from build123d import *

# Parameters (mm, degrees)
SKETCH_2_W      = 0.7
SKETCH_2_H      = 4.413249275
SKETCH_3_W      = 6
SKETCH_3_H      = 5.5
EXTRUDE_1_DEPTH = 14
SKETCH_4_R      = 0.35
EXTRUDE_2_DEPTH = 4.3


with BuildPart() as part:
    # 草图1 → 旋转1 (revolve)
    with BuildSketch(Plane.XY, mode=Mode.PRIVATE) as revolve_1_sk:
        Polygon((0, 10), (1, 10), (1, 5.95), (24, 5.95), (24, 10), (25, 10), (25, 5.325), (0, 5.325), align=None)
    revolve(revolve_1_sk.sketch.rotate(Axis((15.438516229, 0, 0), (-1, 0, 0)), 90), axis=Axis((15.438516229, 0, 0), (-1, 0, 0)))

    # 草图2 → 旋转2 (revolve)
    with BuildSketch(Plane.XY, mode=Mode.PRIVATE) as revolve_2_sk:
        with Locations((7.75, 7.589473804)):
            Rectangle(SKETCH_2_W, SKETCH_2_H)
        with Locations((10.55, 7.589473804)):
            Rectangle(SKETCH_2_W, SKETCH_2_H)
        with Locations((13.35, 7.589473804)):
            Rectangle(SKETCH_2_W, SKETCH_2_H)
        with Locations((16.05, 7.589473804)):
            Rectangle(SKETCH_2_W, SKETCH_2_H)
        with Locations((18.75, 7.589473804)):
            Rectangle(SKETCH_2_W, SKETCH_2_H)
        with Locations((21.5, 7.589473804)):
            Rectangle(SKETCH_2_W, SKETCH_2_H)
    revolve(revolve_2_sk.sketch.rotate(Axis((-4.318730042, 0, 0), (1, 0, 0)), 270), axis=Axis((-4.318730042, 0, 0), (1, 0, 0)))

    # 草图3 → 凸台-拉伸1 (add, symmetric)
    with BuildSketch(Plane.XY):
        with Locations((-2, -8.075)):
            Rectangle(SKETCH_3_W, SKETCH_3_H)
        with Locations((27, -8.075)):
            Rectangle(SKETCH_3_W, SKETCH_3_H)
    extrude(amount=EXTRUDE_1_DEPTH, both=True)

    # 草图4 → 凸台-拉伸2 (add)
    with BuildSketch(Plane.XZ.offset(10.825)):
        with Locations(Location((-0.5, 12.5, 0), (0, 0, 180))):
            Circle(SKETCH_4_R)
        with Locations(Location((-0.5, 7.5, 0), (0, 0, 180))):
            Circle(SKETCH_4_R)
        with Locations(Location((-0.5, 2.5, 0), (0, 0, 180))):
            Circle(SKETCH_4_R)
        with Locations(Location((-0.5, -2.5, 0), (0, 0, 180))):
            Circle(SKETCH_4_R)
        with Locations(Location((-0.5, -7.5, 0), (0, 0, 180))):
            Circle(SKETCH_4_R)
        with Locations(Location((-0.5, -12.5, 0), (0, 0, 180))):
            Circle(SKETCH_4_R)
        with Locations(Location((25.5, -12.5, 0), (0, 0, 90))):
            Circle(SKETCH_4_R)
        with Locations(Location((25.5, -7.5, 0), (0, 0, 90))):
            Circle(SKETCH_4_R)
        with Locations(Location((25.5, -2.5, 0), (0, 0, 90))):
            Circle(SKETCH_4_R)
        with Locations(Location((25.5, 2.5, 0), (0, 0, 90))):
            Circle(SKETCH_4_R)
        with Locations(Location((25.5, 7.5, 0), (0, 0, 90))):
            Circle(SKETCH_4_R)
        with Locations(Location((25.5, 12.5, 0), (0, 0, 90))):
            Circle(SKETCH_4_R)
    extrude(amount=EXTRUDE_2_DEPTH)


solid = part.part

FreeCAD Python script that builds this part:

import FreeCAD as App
import Part
import Sketcher
Q = App.Units.Quantity


def add_polygon(sketch, points):
    """Adds a closed chain of lines whose ends are joined by coincident constraints."""
    first, n = sketch.GeometryCount, len(points)
    for a, b in zip(points, points[1:] + points[:1]):
        sketch.addGeometry(Part.LineSegment(App.Vector(*a, 0), App.Vector(*b, 0)), False)
    for i in range(n):
        sketch.addConstraint(Sketcher.Constraint("Coincident", first + i, 2, first + (i + 1) % n, 1))

doc = App.newDocument("Part")
body = doc.addObject("PartDesign::Body", "Body")

# Sketch on XY plane
sketch1 = body.newObject("Sketcher::SketchObject", "Sketch")
sketch1.AttachmentSupport = (doc.getObject("XY_Plane"), [""])
sketch1.MapMode = "FlatFace"
add_polygon(sketch1, [(1, 10), (0, 10), (0, 5.3), (25, 5.3), (25, 10), (24, 10), (24, 6), (1, 6)])  # lines 0-7
sketch1.addConstraint([
    Sketcher.Constraint("Horizontal", 0),
    Sketcher.Constraint("Vertical", 1),
    Sketcher.Constraint("Horizontal", 2),
    Sketcher.Constraint("Vertical", 3),
    Sketcher.Constraint("Horizontal", 4),
    Sketcher.Constraint("Vertical", 5),
    Sketcher.Constraint("Horizontal", 6),
    Sketcher.Constraint("Vertical", 7),
    Sketcher.Constraint("PointOnObject", 0, 2, -2),
    Sketcher.Constraint("Horizontal", 0, 2, 3, 2),
    Sketcher.Constraint("Equal", 0, 4),
    Sketcher.Constraint("DistanceX", 0, 2, 0, 1, Q("1 mm")),
    Sketcher.Constraint("DistanceX", 2, 1, 2, 2, Q("25 mm")),
    Sketcher.Constraint("DistanceY", -1, 1, 0, 2, Q("10 mm")),
    Sketcher.Constraint("DistanceY", 5, 2, 5, 1, Q("4.05 mm")),
    Sketcher.Constraint("DistanceY", 1, 2, 1, 1, Q("4.675 mm")),
])
revolution = body.newObject("PartDesign::Revolution", "Revolution")
revolution.Profile = sketch1
revolution.ReferenceAxis = (sketch1, ["H_Axis"])
revolution.Angle = 360

# Sketch on XY plane
sketch2 = body.newObject("Sketcher::SketchObject", "Sketch001")
sketch2.AttachmentSupport = (doc.getObject("XY_Plane"), [""])
sketch2.MapMode = "FlatFace"
add_polygon(sketch2, [(7.4, 9.8), (7.4, 5.4), (8.1, 5.4), (8.1, 9.8)])  # lines 0-3
add_polygon(sketch2, [(10.2, 9.8), (10.2, 5.4), (10.9, 5.4), (10.9, 9.8)])  # lines 4-7
add_polygon(sketch2, [(13, 9.8), (13, 5.4), (13.7, 5.4), (13.7, 9.8)])  # lines 8-11
add_polygon(sketch2, [(15.7, 9.8), (15.7, 5.4), (16.4, 5.4), (16.4, 9.8)])  # lines 12-15
add_polygon(sketch2, [(18.4, 9.8), (18.4, 5.4), (19.1, 5.4), (19.1, 9.8)])  # lines 16-19
add_polygon(sketch2, [(21.1, 9.8), (21.1, 5.4), (21.9, 5.4), (21.9, 9.8)])  # lines 20-23
sketch2.addConstraint([
    Sketcher.Constraint("Vertical", 0),
    Sketcher.Constraint("Horizontal", 1),
    Sketcher.Constraint("Vertical", 2),
    Sketcher.Constraint("Horizontal", 3),
    Sketcher.Constraint("Vertical", 4),
    Sketcher.Constraint("Horizontal", 5),
    Sketcher.Constraint("Vertical", 6),
    Sketcher.Constraint("Horizontal", 7),
    Sketcher.Constraint("Vertical", 8),
    Sketcher.Constraint("Horizontal", 9),
    Sketcher.Constraint("Vertical", 10),
    Sketcher.Constraint("Horizontal", 11),
    Sketcher.Constraint("Vertical", 12),
    Sketcher.Constraint("Horizontal", 13),
    Sketcher.Constraint("Vertical", 14),
    Sketcher.Constraint("Horizontal", 15),
    Sketcher.Constraint("Vertical", 16),
    Sketcher.Constraint("Horizontal", 17),
    Sketcher.Constraint("Vertical", 18),
    Sketcher.Constraint("Horizontal", 19),
    Sketcher.Constraint("Vertical", 20),
    Sketcher.Constraint("Horizontal", 21),
    Sketcher.Constraint("Vertical", 22),
    Sketcher.Constraint("Horizontal", 23),
    Sketcher.Constraint("Horizontal", 1, 2, 4, 2),
    Sketcher.Constraint("Horizontal", 3, 2, 6, 2),
    Sketcher.Constraint("Horizontal", 5, 2, 8, 2),
    Sketcher.Constraint("Horizontal", 7, 2, 10, 2),
    Sketcher.Constraint("Horizontal", 9, 2, 12, 2),
    Sketcher.Constraint("Horizontal", 11, 2, 14, 2),
    Sketcher.Constraint("Horizontal", 13, 2, 16, 2),
    Sketcher.Constraint("Horizontal", 15, 2, 18, 2),
    Sketcher.Constraint("Horizontal", 17, 2, 20, 2),
    Sketcher.Constraint("Horizontal", 19, 2, 22, 2),
    Sketcher.Constraint("Equal", 3, 5),
    Sketcher.Constraint("Equal", 7, 9),
    Sketcher.Constraint("Equal", 11, 13),
    Sketcher.Constraint("Equal", 15, 17),
    Sketcher.Constraint("Equal", 19, 21),
    Sketcher.Constraint("DistanceX", 1, 1, 1, 2, Q("0.7 mm")),
    Sketcher.Constraint("DistanceX", -1, 1, 8, 2, Q("13 mm")),
    Sketcher.Constraint("DistanceX", 9, 2, 12, 2, Q("2 mm")),
    Sketcher.Constraint("DistanceX", 13, 2, 16, 2, Q("2 mm")),
    Sketcher.Constraint("DistanceX", -1, 1, 0, 2, Q("7.4 mm")),
    Sketcher.Constraint("DistanceX", -1, 1, 4, 2, Q("10.2 mm")),
    Sketcher.Constraint("DistanceX", -1, 1, 20, 2, Q("21.15 mm")),
    Sketcher.Constraint("DistanceY", 0, 2, 0, 1, Q("4.413249 mm")),
    Sketcher.Constraint("DistanceY", -1, 1, 2, 2, Q("9.796098 mm")),
])
revolution2 = body.newObject("PartDesign::Revolution", "Revolution001")
revolution2.Profile = sketch2
revolution2.ReferenceAxis = (sketch2, ["H_Axis"])
revolution2.Angle = 360

# Sketch on XY plane
sketch3 = body.newObject("Sketcher::SketchObject", "Sketch002")
sketch3.AttachmentSupport = (doc.getObject("XY_Plane"), [""])
sketch3.MapMode = "FlatFace"
add_polygon(sketch3, [(-5, -5), (-5, -11), (1, -11), (1, -5)])  # lines 0-3
add_polygon(sketch3, [(24, -5), (24, -11), (30, -11), (30, -5)])  # lines 4-7
sketch3.addConstraint([
    Sketcher.Constraint("Vertical", 0),
    Sketcher.Constraint("Horizontal", 1),
    Sketcher.Constraint("Vertical", 2),
    Sketcher.Constraint("Horizontal", 3),
    Sketcher.Constraint("Vertical", 4),
    Sketcher.Constraint("Horizontal", 5),
    Sketcher.Constraint("Vertical", 6),
    Sketcher.Constraint("Horizontal", 7),
    Sketcher.Constraint("Horizontal", 1, 2, 4, 2),
    Sketcher.Constraint("Horizontal", 3, 2, 6, 2),
    Sketcher.Constraint("Equal", 3, 5),
    Sketcher.Constraint("DistanceX", 1, 1, 1, 2, Q("6 mm")),
    Sketcher.Constraint("DistanceY", 0, 2, 0, 1, Q("5.5 mm")),
    Sketcher.Constraint("DistanceX", 0, 2, -1, 1, Q("5 mm")),
    Sketcher.Constraint("DistanceX", -1, 1, 4, 2, Q("24 mm")),
    Sketcher.Constraint("DistanceY", 0, 2, -1, 1, Q("10.825 mm")),
])
pad1 = body.newObject("PartDesign::Pad", "Pad")
pad1.Profile = sketch3
pad1.Length = 28
pad1.Midplane = True

# Sketch on XZ plane
sketch4 = body.newObject("Sketcher::SketchObject", "Sketch003")
sketch4.AttachmentSupport = (doc.getObject("XZ_Plane"), [""])
sketch4.MapMode = "FlatFace"
sketch4.AttachmentOffset = App.Placement(App.Vector(0, 0, 10.825), App.Rotation())
sketch4.addGeometry([
    Part.Circle(App.Vector(-0.5, 12.5, 0), App.Vector(0, 0, 1), 0.35),  # 0
    Part.Circle(App.Vector(-0.5, 7.5, 0), App.Vector(0, 0, 1), 0.35),  # 1
    Part.Circle(App.Vector(-0.5, 2.5, 0), App.Vector(0, 0, 1), 0.35),  # 2
    Part.Circle(App.Vector(-0.5, -2.5, 0), App.Vector(0, 0, 1), 0.35),  # 3
    Part.Circle(App.Vector(-0.5, -7.5, 0), App.Vector(0, 0, 1), 0.35),  # 4
    Part.Circle(App.Vector(-0.5, -12.5, 0), App.Vector(0, 0, 1), 0.35),  # 5
    Part.Circle(App.Vector(25.5, -12.5, 0), App.Vector(0, 0, 1), 0.35),  # 6
    Part.Circle(App.Vector(25.5, -7.5, 0), App.Vector(0, 0, 1), 0.35),  # 7
    Part.Circle(App.Vector(25.5, -2.5, 0), App.Vector(0, 0, 1), 0.35),  # 8
    Part.Circle(App.Vector(25.5, 2.5, 0), App.Vector(0, 0, 1), 0.35),  # 9
    Part.Circle(App.Vector(25.5, 7.5, 0), App.Vector(0, 0, 1), 0.35),  # 10
    Part.Circle(App.Vector(25.5, 12.5, 0), App.Vector(0, 0, 1), 0.35),  # 11
], False)
sketch4.addConstraint([
    Sketcher.Constraint("Equal", 0, 1),
    Sketcher.Constraint("Equal", 1, 2),
    Sketcher.Constraint("Equal", 2, 3),
    Sketcher.Constraint("Equal", 3, 4),
    Sketcher.Constraint("Equal", 4, 5),
    Sketcher.Constraint("Equal", 5, 6),
    Sketcher.Constraint("Equal", 6, 7),
    Sketcher.Constraint("Equal", 7, 8),
    Sketcher.Constraint("Equal", 8, 9),
    Sketcher.Constraint("Equal", 9, 10),
    Sketcher.Constraint("Equal", 10, 11),
    Sketcher.Constraint("Symmetric", 2, 3, 3, 3, -1),
    Sketcher.Constraint("Symmetric", 1, 3, 4, 3, -1),
    Sketcher.Constraint("Symmetric", 0, 3, 5, 3, -1),
    Sketcher.Constraint("Symmetric", 8, 3, 9, 3, -1),
    Sketcher.Constraint("Symmetric", 7, 3, 10, 3, -1),
    Sketcher.Constraint("Symmetric", 6, 3, 11, 3, -1),
    Sketcher.Constraint("Horizontal", 5, 3, 6, 3),
    Sketcher.Constraint("Horizontal", 4, 3, 7, 3),
    Sketcher.Constraint("Horizontal", 3, 3, 8, 3),
    Sketcher.Constraint("Vertical", 0, 3, 1, 3),
    Sketcher.Constraint("Vertical", 1, 3, 2, 3),
    Sketcher.Constraint("Vertical", 6, 3, 7, 3),
    Sketcher.Constraint("Vertical", 7, 3, 8, 3),
    Sketcher.Constraint("Diameter", 0, Q("0.7 mm")),
    Sketcher.Constraint("DistanceY", 1, 3, 0, 3, Q("5 mm")),
    Sketcher.Constraint("DistanceY", 2, 3, 1, 3, Q("5 mm")),
    Sketcher.Constraint("DistanceY", 3, 3, 2, 3, Q("5 mm")),
    Sketcher.Constraint("DistanceX", 5, 3, 6, 3, Q("26 mm")),
    Sketcher.Constraint("DistanceX", 0, 3, -1, 1, Q("0.5 mm")),
])
pad2 = body.newObject("PartDesign::Pad", "Pad001")
pad2.Profile = sketch4
pad2.Length = 4.3

doc.recompute()
